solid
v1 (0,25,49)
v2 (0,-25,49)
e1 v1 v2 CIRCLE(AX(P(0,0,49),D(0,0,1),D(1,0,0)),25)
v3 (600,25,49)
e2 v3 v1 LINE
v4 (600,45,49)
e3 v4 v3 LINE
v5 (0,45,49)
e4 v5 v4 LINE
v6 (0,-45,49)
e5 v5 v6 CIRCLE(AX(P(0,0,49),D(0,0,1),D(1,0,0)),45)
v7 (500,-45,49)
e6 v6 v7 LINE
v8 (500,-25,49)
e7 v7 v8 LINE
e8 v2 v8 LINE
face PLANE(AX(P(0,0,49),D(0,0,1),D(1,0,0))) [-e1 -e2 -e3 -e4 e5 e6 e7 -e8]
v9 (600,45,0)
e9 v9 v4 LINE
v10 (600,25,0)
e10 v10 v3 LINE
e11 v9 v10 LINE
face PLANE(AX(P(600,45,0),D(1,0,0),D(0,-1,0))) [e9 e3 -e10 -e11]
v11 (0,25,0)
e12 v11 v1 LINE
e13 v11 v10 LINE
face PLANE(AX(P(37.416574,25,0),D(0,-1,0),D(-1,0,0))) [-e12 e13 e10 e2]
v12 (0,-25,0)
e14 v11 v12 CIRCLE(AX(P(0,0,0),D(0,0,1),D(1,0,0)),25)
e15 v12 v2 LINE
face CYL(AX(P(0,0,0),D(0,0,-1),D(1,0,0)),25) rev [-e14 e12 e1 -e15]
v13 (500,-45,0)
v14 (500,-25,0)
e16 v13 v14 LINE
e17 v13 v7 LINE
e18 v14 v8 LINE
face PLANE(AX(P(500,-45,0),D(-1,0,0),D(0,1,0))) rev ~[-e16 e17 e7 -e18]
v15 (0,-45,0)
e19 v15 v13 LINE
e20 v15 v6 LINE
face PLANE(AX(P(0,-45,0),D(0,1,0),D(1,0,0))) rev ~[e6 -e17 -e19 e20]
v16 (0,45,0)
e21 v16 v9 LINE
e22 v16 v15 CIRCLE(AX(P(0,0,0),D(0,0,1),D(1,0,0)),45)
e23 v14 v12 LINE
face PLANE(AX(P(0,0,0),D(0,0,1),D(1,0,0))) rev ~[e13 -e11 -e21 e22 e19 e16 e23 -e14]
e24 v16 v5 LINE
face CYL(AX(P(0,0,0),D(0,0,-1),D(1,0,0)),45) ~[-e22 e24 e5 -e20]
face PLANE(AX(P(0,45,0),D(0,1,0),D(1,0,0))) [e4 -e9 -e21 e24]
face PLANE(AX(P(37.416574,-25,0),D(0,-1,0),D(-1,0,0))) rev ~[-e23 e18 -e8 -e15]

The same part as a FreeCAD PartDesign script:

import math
import FreeCAD as App
import Part
import Sketcher
from FreeCAD import Vector
Q = App.Units.Quantity

doc = App.newDocument("Part")
body = doc.addObject("PartDesign::Body", "Body")

# Sketch on XY plane
sketch1 = body.newObject("Sketcher::SketchObject", "Sketch")
sketch1.AttachmentSupport = (doc.getObject("XY_Plane"), [""])
sketch1.MapMode = "FlatFace"
sketch1.addGeometry(Part.ArcOfCircle(Part.Circle(Vector(0, 0, 0), Vector(0, 0, 1), 25), math.radians(90), math.radians(270)), False)
sketch1.addGeometry(Part.LineSegment(Vector(0, 25, 0), Vector(600, 25, 0)), False)
sketch1.addGeometry(Part.LineSegment(Vector(600, 25, 0), Vector(600, 45, 0)), False)
sketch1.addGeometry(Part.LineSegment(Vector(600, 45, 0), Vector(0, 45, 0)), False)
sketch1.addGeometry(Part.ArcOfCircle(Part.Circle(Vector(0, 0, 0), Vector(0, 0, 1), 45), math.radians(90), math.radians(270)), False)
sketch1.addGeometry(Part.LineSegment(Vector(0, -45, 0), Vector(500, -45, 0)), False)
sketch1.addGeometry(Part.LineSegment(Vector(500, -45, 0), Vector(500, -25, 0)), False)
sketch1.addGeometry(Part.LineSegment(Vector(500, -25, 0), Vector(0, -25, 0)), False)
sketch1.addConstraint(Sketcher.Constraint("Tangent", 0, 1, 1, 1))
sketch1.addConstraint(Sketcher.Constraint("Coincident", 1, 2, 2, 1))
sketch1.addConstraint(Sketcher.Constraint("Coincident", 2, 2, 3, 1))
sketch1.addConstraint(Sketcher.Constraint("Tangent", 3, 2, 4, 1))
sketch1.addConstraint(Sketcher.Constraint("Tangent", 4, 2, 5, 1))
sketch1.addConstraint(Sketcher.Constraint("Coincident", 5, 2, 6, 1))
sketch1.addConstraint(Sketcher.Constraint("Coincident", 6, 2, 7, 1))
sketch1.addConstraint(Sketcher.Constraint("Tangent", 7, 2, 0, 2))
sketch1.addConstraint(Sketcher.Constraint("Horizontal", 1))
sketch1.addConstraint(Sketcher.Constraint("Vertical", 2))
sketch1.addConstraint(Sketcher.Constraint("Horizontal", 3))
sketch1.addConstraint(Sketcher.Constraint("Horizontal", 5))
sketch1.addConstraint(Sketcher.Constraint("Vertical", 6))
sketch1.addConstraint(Sketcher.Constraint("Horizontal", 7))
sketch1.addConstraint(Sketcher.Constraint("Coincident", 0, 3, -1, 1))
sketch1.addConstraint(Sketcher.Constraint("Coincident", 4, 3, -1, 1))
sketch1.addConstraint(Sketcher.Constraint("Radius", 4, Q("45 mm")))
sketch1.addConstraint(Sketcher.Constraint("DistanceX", 1, 1, 1, 2, Q("600 mm")))
sketch1.addConstraint(Sketcher.Constraint("DistanceX", 5, 1, 5, 2, Q("500 mm")))
sketch1.addConstraint(Sketcher.Constraint("DistanceY", 2, 1, 2, 2, Q("20 mm")))
pad1 = body.newObject("PartDesign::Pad", "Pad")
pad1.Profile = sketch1
pad1.Length = 49

doc.recompute()
